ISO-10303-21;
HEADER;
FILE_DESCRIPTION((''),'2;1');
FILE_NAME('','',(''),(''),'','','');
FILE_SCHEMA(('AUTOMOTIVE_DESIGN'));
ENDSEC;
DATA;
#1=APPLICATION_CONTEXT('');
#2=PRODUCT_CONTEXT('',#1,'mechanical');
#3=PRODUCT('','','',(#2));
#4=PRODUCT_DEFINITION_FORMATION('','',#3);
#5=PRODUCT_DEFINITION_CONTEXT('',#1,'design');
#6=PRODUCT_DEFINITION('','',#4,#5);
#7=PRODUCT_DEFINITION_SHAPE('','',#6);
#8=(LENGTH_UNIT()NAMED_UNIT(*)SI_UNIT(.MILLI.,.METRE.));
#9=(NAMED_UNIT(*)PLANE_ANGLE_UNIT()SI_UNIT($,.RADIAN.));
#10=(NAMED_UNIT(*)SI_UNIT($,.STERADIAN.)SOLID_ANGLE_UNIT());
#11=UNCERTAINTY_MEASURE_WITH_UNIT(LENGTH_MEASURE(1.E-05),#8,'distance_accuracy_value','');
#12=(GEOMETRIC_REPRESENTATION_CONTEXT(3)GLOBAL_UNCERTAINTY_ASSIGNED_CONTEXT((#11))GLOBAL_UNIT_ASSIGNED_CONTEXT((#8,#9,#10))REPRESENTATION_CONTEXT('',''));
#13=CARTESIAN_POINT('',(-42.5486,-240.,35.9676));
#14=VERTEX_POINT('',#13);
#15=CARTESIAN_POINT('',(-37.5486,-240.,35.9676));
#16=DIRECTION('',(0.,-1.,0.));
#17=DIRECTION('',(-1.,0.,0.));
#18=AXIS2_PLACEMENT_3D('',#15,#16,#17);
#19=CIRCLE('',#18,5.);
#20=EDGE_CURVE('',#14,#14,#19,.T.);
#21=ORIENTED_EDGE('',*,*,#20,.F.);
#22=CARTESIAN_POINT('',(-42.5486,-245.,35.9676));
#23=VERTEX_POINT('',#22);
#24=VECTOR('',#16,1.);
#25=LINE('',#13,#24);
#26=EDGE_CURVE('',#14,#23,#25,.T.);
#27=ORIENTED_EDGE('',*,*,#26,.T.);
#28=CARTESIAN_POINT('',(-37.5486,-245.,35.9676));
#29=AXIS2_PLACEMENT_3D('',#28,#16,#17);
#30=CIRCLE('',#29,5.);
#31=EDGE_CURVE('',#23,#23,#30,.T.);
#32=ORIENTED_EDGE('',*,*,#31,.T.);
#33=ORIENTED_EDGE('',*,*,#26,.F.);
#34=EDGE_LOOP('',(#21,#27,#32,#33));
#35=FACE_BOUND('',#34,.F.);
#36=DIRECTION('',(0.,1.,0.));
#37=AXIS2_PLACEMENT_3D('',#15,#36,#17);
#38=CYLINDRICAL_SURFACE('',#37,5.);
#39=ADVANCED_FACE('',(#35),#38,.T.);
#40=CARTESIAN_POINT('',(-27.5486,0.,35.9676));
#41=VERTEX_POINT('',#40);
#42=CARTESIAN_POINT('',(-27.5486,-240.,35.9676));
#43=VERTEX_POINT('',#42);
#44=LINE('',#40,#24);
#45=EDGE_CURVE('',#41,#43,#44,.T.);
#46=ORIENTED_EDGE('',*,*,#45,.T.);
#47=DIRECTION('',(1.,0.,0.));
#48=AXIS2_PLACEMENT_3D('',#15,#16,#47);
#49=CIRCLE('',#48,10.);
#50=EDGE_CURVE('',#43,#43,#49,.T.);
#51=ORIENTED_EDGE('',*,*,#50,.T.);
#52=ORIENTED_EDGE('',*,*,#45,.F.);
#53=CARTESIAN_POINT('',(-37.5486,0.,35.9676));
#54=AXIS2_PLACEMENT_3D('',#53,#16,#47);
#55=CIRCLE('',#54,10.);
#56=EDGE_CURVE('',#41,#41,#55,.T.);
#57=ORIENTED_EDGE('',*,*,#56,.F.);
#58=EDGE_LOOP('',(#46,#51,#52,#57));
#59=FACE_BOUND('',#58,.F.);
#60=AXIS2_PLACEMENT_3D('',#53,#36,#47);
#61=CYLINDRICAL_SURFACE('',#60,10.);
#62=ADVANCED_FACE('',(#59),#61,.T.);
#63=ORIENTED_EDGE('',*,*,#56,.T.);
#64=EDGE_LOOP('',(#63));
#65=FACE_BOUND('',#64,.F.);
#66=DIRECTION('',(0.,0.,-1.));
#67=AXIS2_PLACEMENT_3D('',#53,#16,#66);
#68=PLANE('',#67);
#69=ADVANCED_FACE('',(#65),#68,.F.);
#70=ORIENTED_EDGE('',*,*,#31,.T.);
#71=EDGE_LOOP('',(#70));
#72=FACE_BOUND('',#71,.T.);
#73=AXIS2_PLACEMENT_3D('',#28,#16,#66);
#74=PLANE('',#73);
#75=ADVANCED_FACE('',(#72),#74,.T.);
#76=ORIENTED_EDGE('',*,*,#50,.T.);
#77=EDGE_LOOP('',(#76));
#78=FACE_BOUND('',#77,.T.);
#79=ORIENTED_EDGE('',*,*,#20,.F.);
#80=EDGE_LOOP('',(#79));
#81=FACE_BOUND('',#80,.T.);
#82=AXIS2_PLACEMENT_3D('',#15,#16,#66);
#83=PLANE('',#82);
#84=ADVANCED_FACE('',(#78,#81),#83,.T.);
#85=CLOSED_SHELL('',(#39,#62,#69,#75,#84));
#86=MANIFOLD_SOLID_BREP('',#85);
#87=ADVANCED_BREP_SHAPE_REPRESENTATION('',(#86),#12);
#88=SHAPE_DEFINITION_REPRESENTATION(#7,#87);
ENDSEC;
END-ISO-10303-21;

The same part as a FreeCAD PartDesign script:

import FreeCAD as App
import Part
import Sketcher

V = App.Vector

doc = App.newDocument("Part")
body = doc.addObject("PartDesign::Body", "Body")

sketch1 = body.newObject("Sketcher::SketchObject", "Sketch")
sketch1.AttachmentSupport = (doc.getObject("XZ_Plane"), [""])
sketch1.MapMode = "FlatFace"
sketch1.addGeometry(Part.Circle(V(-38, 36, 0), V(0, 0, 1), 10), False)
sketch1.addConstraint([
    Sketcher.Constraint("Diameter", 0, 20.0),
    Sketcher.Constraint("DistanceX", 0, 3, -1, 1, 37.5486),
    Sketcher.Constraint("DistanceY", -1, 1, 0, 3, 35.9676),
])
pad1 = body.newObject("PartDesign::Pad", "Pad")
pad1.Profile = sketch1
pad1.Length = 240

sketch2 = body.newObject("Sketcher::SketchObject", "Sketch001")
sketch2.AttachmentSupport = (doc.getObject("XZ_Plane"), [""])
sketch2.MapMode = "FlatFace"
sketch2.AttachmentOffset = App.Placement(V(0, 0, 240), App.Rotation())
sketch2.addGeometry(Part.Circle(V(-38, 36, 0), V(0, 0, 1), 5), False)
sketch2.addConstraint([
    Sketcher.Constraint("Diameter", 0, 10.0),
    Sketcher.Constraint("DistanceX", 0, 3, -1, 1, 37.5486),
    Sketcher.Constraint("DistanceY", -1, 1, 0, 3, 35.9676),
])
pad2 = body.newObject("PartDesign::Pad", "Pad001")
pad2.Profile = sketch2
pad2.Length = 5

doc.recompute()
